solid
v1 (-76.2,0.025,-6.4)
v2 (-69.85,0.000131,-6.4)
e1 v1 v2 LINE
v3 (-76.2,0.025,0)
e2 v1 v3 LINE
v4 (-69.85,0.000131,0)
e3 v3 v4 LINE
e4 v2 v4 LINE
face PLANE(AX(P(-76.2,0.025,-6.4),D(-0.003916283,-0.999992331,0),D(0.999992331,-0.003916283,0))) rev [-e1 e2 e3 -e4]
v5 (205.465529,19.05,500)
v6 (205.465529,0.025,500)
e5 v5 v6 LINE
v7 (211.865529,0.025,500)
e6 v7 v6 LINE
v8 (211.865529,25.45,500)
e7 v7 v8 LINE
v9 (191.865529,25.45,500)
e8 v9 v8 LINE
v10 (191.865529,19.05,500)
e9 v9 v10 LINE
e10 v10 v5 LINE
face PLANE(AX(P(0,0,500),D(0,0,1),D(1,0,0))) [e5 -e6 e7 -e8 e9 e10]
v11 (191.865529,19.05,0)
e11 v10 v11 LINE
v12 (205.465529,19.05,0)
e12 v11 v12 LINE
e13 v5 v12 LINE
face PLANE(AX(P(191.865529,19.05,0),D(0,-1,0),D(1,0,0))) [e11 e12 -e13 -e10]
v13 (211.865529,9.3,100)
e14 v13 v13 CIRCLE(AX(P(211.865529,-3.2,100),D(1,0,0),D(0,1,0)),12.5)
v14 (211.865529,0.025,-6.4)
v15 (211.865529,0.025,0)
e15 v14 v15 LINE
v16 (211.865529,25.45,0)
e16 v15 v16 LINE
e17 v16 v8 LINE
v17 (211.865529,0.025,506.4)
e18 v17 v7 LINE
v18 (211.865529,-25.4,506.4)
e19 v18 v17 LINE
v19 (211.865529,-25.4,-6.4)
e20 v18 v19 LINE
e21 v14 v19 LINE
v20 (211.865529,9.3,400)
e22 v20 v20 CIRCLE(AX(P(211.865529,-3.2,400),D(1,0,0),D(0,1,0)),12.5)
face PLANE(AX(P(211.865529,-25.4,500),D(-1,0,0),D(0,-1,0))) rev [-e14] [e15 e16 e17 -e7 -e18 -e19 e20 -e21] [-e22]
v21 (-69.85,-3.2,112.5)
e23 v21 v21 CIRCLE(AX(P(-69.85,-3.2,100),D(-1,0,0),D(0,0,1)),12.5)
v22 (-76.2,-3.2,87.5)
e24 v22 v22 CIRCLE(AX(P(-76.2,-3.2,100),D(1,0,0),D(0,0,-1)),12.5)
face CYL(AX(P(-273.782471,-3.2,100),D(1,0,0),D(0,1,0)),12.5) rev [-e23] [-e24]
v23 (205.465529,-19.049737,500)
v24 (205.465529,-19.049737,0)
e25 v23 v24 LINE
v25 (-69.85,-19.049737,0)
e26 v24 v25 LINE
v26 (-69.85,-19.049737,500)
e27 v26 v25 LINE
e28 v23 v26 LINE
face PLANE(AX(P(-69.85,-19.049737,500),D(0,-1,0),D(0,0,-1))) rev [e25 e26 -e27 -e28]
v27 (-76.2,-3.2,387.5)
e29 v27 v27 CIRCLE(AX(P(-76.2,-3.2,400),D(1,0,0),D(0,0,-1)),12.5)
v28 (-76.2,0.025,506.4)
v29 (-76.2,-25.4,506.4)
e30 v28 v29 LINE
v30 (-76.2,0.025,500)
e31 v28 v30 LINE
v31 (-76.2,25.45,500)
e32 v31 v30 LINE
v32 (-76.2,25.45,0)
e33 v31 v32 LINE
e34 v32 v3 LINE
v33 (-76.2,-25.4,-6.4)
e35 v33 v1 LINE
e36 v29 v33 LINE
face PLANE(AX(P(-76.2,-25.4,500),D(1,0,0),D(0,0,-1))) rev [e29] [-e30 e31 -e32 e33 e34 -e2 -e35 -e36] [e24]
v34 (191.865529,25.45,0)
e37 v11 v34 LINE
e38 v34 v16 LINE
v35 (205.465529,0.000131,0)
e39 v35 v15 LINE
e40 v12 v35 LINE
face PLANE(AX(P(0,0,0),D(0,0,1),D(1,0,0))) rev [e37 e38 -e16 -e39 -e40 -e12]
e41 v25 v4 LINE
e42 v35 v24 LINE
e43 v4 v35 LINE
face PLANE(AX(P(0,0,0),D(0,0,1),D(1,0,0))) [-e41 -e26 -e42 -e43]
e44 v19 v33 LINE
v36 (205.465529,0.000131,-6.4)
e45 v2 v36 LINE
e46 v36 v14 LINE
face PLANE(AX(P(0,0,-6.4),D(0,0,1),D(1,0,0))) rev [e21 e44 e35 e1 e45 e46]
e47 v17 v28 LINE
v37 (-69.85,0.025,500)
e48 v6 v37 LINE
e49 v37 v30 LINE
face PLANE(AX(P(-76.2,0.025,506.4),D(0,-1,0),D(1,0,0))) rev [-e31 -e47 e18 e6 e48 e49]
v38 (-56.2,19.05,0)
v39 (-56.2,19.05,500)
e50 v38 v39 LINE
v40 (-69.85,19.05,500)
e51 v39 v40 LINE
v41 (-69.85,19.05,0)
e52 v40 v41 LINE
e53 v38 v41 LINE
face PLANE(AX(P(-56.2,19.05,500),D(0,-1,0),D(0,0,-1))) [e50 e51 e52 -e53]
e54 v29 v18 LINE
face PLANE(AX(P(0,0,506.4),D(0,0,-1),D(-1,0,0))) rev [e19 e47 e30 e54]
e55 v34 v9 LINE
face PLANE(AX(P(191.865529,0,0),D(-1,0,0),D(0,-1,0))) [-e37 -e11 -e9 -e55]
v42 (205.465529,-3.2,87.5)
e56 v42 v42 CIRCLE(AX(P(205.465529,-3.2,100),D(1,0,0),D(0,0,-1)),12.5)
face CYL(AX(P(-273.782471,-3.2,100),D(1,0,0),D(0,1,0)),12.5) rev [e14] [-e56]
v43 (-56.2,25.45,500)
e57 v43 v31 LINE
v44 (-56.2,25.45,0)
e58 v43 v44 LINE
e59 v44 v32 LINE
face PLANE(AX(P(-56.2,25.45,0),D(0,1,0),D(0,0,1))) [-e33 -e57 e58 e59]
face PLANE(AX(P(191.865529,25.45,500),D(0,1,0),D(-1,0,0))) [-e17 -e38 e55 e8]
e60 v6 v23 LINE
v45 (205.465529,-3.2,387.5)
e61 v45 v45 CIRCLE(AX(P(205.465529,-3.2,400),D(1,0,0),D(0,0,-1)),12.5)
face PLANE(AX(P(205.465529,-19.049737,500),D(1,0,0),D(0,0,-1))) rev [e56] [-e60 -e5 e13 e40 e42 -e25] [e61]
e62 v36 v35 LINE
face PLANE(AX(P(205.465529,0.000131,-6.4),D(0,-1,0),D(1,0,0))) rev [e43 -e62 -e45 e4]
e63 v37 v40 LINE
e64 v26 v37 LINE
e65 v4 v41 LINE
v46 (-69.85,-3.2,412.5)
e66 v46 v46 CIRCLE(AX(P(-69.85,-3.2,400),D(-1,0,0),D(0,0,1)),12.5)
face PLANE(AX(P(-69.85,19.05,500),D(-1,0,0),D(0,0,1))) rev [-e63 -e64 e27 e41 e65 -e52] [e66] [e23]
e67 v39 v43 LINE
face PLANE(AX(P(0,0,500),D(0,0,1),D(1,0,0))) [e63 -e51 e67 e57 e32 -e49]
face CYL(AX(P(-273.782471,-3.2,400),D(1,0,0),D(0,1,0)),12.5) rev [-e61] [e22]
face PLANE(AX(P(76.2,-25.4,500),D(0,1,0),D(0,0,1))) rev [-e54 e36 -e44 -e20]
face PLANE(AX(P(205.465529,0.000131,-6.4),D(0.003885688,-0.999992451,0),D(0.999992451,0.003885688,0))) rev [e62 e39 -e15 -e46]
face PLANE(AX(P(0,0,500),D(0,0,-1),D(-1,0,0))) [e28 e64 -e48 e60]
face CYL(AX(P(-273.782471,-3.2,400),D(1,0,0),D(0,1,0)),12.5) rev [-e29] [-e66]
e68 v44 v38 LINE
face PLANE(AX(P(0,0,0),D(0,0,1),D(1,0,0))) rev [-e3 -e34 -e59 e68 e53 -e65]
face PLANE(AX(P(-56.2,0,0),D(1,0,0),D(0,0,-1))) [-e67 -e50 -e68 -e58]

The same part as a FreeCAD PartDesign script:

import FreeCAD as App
import Part
import Sketcher

V = App.Vector


def add_polygon(sketch, points):
    """Adds a closed chain of lines whose ends are joined by coincident constraints."""
    first, n = sketch.GeometryCount, len(points)
    for a, b in zip(points, points[1:] + points[:1]):
        sketch.addGeometry(Part.LineSegment(App.Vector(*a, 0), App.Vector(*b, 0)), False)
    for i in range(n):
        sketch.addConstraint(Sketcher.Constraint("Coincident", first + i, 2, first + (i + 1) % n, 1))

doc = App.newDocument("Part")
body = doc.addObject("PartDesign::Body", "Body")

# Sketch on XY plane
sketch1 = body.newObject("Sketcher::SketchObject", "Sketch")
sketch1.AttachmentSupport = (doc.getObject("XY_Plane"), [""])
sketch1.MapMode = "FlatFace"
add_polygon(sketch1, [(-70, -19), (-70, 19), (-76, 19), (-76, -25), (212, -25), (212, 19), (205, 19), (205, -19)])  # lines 0-7
sketch1.addConstraint([
    Sketcher.Constraint("Vertical", 0),
    Sketcher.Constraint("Horizontal", 1),
    Sketcher.Constraint("Vertical", 2),
    Sketcher.Constraint("Horizontal", 3),
    Sketcher.Constraint("Vertical", 4),
    Sketcher.Constraint("Horizontal", 5),
    Sketcher.Constraint("Vertical", 6),
    Sketcher.Constraint("Horizontal", 7),
    Sketcher.Constraint("Horizontal", 1, 2, 4, 2),
    Sketcher.Constraint("DistanceX", 5, 2, 5, 1, 6.4),
    Sketcher.Constraint("DistanceX", 1, 2, 1, 1, 6.35),
    Sketcher.Constraint("DistanceY", 2, 2, 2, 1, 44.45),
    Sketcher.Constraint("DistanceX", 1, 2, -1, 1, 76.2),
    Sketcher.Constraint("DistanceY", 2, 2, -1, 1, 25.4),
    Sketcher.Constraint("DistanceX", 3, 1, 3, 2, 288.065529),
    Sketcher.Constraint("DistanceY", 0, 1, 0, 2, 38.099737),
])
pad1 = body.newObject("PartDesign::Pad", "Pad")
pad1.Profile = sketch1
pad1.Length = 500

# Sketch on YZ plane
sketch2 = body.newObject("Sketcher::SketchObject", "Sketch001")
sketch2.AttachmentSupport = (doc.getObject("YZ_Plane"), [""])
sketch2.MapMode = "FlatFace"
sketch2.AttachmentOffset = App.Placement(V(0, 0, 211.865529), App.Rotation())
sketch2.addGeometry([
    Part.Circle(V(-3, 400, 0), V(0, 0, 1), 12),
    Part.Circle(V(-3, 100, 0), V(0, 0, 1), 12),
], False)
sketch2.addConstraint([
    Sketcher.Constraint("Equal", 0, 1),
    Sketcher.Constraint("Vertical", 0, 3, 1, 3),
    Sketcher.Constraint("Diameter", 0, 25.0),
    Sketcher.Constraint("DistanceY", -1, 1, 0, 3, 400.0),
    Sketcher.Constraint("DistanceY", -1, 1, 1, 3, 100.0),
    Sketcher.Constraint("DistanceX", 0, 3, -1, 1, 3.2),
])
pocket1 = body.newObject("PartDesign::Pocket", "Pocket")
pocket1.Profile = sketch2
pocket1.Length = 485.648

# Sketch on YZ plane
sketch3 = body.newObject("Sketcher::SketchObject", "Sketch002")
sketch3.AttachmentSupport = (doc.getObject("YZ_Plane"), [""])
sketch3.MapMode = "FlatFace"
sketch3.AttachmentOffset = App.Placement(V(0, 0, 211.865529), App.Rotation())
add_polygon(sketch3, [(25, 500), (19, 500), (19, 0), (25, 0)])  # lines 0-3
sketch3.addConstraint([
    Sketcher.Constraint("Horizontal", 0),
    Sketcher.Constraint("Vertical", 1),
    Sketcher.Constraint("Horizontal", 2),
    Sketcher.Constraint("Vertical", 3),
    Sketcher.Constraint("PointOnObject", 1, 2, -1),
    Sketcher.Constraint("DistanceY", 1, 2, 1, 1, 500.0),
    Sketcher.Constraint("DistanceX", 0, 2, 0, 1, 6.4),
    Sketcher.Constraint("DistanceX", -1, 1, 0, 2, 19.05),
])
pad2 = body.newObject("PartDesign::Pad", "Pad001")
pad2.Profile = sketch3
pad2.Length = 20
pad2.Reversed = True

# Sketch on YZ plane
sketch4 = body.newObject("Sketcher::SketchObject", "Sketch003")
sketch4.AttachmentSupport = (doc.getObject("YZ_Plane"), [""])
sketch4.MapMode = "FlatFace"
sketch4.AttachmentOffset = App.Placement(V(0, 0, -76.2), App.Rotation())
add_polygon(sketch4, [(25, 0), (19, 0), (19, 500), (25, 500)])  # lines 0-3
sketch4.addConstraint([
    Sketcher.Constraint("Horizontal", 0),
    Sketcher.Constraint("Vertical", 1),
    Sketcher.Constraint("Horizontal", 2),
    Sketcher.Constraint("Vertical", 3),
    Sketcher.Constraint("PointOnObject", 0, 2, -1),
    Sketcher.Constraint("DistanceY", 1, 1, 1, 2, 500.0),
    Sketcher.Constraint("DistanceX", 0, 2, 0, 1, 6.4),
    Sketcher.Constraint("DistanceX", -1, 1, 0, 2, 19.05),
])
pad3 = body.newObject("PartDesign::Pad", "Pad002")
pad3.Profile = sketch4
pad3.Length = 20

# Sketch on XY plane
sketch5 = body.newObject("Sketcher::SketchObject", "Sketch004")
sketch5.AttachmentSupport = (doc.getObject("XY_Plane"), [""])
sketch5.MapMode = "FlatFace"
add_polygon(sketch5, [(212, -25), (-76, -25), (-76, 0), (-70, 0), (205, 0), (212, 0)])  # lines 0-5
sketch5.addConstraint([
    Sketcher.Constraint("Horizontal", 0),
    Sketcher.Constraint("Vertical", 1),
    Sketcher.Constraint("Horizontal", 3),
    Sketcher.Constraint("Vertical", 5),
    Sketcher.Constraint("Horizontal", 1, 2, 4, 2),
    Sketcher.Constraint("DistanceX", 0, 2, -1, 1, 76.2),
    Sketcher.Constraint("DistanceY", 0, 2, -1, 1, 25.4),
    Sketcher.Constraint("DistanceX", 3, 2, 4, 2, 6.4),
    Sketcher.Constraint("DistanceY", 1, 1, 1, 2, 25.425),
    Sketcher.Constraint("DistanceX", 2, 2, -1, 1, 69.85),
    Sketcher.Constraint("DistanceX", 0, 2, 0, 1, 288.065529),
    Sketcher.Constraint("DistanceY", -1, 1, 2, 2, 0.000131),
])
pad4 = body.newObject("PartDesign::Pad", "Pad003")
pad4.Profile = sketch5
pad4.Length = 6.4
pad4.Reversed = True

# Sketch on XY plane
sketch6 = body.newObject("Sketcher::SketchObject", "Sketch005")
sketch6.AttachmentSupport = (doc.getObject("XY_Plane"), [""])
sketch6.MapMode = "FlatFace"
sketch6.AttachmentOffset = App.Placement(V(0, 0, 500), App.Rotation())
add_polygon(sketch6, [(-76, 0), (-76, -25), (212, -25), (212, 0)])  # lines 0-3
sketch6.addConstraint([
    Sketcher.Constraint("Vertical", 0),
    Sketcher.Constraint("Horizontal", 1),
    Sketcher.Constraint("Vertical", 2),
    Sketcher.Constraint("Horizontal", 3),
    Sketcher.Constraint("DistanceX", 0, 2, -1, 1, 76.2),
    Sketcher.Constraint("DistanceY", 0, 2, -1, 1, 25.4),
    Sketcher.Constraint("DistanceY", 0, 2, 0, 1, 25.425),
    Sketcher.Constraint("DistanceX", 1, 1, 1, 2, 288.065529),
])
pad5 = body.newObject("PartDesign::Pad", "Pad004")
pad5.Profile = sketch6
pad5.Length = 6.4

doc.recompute()
